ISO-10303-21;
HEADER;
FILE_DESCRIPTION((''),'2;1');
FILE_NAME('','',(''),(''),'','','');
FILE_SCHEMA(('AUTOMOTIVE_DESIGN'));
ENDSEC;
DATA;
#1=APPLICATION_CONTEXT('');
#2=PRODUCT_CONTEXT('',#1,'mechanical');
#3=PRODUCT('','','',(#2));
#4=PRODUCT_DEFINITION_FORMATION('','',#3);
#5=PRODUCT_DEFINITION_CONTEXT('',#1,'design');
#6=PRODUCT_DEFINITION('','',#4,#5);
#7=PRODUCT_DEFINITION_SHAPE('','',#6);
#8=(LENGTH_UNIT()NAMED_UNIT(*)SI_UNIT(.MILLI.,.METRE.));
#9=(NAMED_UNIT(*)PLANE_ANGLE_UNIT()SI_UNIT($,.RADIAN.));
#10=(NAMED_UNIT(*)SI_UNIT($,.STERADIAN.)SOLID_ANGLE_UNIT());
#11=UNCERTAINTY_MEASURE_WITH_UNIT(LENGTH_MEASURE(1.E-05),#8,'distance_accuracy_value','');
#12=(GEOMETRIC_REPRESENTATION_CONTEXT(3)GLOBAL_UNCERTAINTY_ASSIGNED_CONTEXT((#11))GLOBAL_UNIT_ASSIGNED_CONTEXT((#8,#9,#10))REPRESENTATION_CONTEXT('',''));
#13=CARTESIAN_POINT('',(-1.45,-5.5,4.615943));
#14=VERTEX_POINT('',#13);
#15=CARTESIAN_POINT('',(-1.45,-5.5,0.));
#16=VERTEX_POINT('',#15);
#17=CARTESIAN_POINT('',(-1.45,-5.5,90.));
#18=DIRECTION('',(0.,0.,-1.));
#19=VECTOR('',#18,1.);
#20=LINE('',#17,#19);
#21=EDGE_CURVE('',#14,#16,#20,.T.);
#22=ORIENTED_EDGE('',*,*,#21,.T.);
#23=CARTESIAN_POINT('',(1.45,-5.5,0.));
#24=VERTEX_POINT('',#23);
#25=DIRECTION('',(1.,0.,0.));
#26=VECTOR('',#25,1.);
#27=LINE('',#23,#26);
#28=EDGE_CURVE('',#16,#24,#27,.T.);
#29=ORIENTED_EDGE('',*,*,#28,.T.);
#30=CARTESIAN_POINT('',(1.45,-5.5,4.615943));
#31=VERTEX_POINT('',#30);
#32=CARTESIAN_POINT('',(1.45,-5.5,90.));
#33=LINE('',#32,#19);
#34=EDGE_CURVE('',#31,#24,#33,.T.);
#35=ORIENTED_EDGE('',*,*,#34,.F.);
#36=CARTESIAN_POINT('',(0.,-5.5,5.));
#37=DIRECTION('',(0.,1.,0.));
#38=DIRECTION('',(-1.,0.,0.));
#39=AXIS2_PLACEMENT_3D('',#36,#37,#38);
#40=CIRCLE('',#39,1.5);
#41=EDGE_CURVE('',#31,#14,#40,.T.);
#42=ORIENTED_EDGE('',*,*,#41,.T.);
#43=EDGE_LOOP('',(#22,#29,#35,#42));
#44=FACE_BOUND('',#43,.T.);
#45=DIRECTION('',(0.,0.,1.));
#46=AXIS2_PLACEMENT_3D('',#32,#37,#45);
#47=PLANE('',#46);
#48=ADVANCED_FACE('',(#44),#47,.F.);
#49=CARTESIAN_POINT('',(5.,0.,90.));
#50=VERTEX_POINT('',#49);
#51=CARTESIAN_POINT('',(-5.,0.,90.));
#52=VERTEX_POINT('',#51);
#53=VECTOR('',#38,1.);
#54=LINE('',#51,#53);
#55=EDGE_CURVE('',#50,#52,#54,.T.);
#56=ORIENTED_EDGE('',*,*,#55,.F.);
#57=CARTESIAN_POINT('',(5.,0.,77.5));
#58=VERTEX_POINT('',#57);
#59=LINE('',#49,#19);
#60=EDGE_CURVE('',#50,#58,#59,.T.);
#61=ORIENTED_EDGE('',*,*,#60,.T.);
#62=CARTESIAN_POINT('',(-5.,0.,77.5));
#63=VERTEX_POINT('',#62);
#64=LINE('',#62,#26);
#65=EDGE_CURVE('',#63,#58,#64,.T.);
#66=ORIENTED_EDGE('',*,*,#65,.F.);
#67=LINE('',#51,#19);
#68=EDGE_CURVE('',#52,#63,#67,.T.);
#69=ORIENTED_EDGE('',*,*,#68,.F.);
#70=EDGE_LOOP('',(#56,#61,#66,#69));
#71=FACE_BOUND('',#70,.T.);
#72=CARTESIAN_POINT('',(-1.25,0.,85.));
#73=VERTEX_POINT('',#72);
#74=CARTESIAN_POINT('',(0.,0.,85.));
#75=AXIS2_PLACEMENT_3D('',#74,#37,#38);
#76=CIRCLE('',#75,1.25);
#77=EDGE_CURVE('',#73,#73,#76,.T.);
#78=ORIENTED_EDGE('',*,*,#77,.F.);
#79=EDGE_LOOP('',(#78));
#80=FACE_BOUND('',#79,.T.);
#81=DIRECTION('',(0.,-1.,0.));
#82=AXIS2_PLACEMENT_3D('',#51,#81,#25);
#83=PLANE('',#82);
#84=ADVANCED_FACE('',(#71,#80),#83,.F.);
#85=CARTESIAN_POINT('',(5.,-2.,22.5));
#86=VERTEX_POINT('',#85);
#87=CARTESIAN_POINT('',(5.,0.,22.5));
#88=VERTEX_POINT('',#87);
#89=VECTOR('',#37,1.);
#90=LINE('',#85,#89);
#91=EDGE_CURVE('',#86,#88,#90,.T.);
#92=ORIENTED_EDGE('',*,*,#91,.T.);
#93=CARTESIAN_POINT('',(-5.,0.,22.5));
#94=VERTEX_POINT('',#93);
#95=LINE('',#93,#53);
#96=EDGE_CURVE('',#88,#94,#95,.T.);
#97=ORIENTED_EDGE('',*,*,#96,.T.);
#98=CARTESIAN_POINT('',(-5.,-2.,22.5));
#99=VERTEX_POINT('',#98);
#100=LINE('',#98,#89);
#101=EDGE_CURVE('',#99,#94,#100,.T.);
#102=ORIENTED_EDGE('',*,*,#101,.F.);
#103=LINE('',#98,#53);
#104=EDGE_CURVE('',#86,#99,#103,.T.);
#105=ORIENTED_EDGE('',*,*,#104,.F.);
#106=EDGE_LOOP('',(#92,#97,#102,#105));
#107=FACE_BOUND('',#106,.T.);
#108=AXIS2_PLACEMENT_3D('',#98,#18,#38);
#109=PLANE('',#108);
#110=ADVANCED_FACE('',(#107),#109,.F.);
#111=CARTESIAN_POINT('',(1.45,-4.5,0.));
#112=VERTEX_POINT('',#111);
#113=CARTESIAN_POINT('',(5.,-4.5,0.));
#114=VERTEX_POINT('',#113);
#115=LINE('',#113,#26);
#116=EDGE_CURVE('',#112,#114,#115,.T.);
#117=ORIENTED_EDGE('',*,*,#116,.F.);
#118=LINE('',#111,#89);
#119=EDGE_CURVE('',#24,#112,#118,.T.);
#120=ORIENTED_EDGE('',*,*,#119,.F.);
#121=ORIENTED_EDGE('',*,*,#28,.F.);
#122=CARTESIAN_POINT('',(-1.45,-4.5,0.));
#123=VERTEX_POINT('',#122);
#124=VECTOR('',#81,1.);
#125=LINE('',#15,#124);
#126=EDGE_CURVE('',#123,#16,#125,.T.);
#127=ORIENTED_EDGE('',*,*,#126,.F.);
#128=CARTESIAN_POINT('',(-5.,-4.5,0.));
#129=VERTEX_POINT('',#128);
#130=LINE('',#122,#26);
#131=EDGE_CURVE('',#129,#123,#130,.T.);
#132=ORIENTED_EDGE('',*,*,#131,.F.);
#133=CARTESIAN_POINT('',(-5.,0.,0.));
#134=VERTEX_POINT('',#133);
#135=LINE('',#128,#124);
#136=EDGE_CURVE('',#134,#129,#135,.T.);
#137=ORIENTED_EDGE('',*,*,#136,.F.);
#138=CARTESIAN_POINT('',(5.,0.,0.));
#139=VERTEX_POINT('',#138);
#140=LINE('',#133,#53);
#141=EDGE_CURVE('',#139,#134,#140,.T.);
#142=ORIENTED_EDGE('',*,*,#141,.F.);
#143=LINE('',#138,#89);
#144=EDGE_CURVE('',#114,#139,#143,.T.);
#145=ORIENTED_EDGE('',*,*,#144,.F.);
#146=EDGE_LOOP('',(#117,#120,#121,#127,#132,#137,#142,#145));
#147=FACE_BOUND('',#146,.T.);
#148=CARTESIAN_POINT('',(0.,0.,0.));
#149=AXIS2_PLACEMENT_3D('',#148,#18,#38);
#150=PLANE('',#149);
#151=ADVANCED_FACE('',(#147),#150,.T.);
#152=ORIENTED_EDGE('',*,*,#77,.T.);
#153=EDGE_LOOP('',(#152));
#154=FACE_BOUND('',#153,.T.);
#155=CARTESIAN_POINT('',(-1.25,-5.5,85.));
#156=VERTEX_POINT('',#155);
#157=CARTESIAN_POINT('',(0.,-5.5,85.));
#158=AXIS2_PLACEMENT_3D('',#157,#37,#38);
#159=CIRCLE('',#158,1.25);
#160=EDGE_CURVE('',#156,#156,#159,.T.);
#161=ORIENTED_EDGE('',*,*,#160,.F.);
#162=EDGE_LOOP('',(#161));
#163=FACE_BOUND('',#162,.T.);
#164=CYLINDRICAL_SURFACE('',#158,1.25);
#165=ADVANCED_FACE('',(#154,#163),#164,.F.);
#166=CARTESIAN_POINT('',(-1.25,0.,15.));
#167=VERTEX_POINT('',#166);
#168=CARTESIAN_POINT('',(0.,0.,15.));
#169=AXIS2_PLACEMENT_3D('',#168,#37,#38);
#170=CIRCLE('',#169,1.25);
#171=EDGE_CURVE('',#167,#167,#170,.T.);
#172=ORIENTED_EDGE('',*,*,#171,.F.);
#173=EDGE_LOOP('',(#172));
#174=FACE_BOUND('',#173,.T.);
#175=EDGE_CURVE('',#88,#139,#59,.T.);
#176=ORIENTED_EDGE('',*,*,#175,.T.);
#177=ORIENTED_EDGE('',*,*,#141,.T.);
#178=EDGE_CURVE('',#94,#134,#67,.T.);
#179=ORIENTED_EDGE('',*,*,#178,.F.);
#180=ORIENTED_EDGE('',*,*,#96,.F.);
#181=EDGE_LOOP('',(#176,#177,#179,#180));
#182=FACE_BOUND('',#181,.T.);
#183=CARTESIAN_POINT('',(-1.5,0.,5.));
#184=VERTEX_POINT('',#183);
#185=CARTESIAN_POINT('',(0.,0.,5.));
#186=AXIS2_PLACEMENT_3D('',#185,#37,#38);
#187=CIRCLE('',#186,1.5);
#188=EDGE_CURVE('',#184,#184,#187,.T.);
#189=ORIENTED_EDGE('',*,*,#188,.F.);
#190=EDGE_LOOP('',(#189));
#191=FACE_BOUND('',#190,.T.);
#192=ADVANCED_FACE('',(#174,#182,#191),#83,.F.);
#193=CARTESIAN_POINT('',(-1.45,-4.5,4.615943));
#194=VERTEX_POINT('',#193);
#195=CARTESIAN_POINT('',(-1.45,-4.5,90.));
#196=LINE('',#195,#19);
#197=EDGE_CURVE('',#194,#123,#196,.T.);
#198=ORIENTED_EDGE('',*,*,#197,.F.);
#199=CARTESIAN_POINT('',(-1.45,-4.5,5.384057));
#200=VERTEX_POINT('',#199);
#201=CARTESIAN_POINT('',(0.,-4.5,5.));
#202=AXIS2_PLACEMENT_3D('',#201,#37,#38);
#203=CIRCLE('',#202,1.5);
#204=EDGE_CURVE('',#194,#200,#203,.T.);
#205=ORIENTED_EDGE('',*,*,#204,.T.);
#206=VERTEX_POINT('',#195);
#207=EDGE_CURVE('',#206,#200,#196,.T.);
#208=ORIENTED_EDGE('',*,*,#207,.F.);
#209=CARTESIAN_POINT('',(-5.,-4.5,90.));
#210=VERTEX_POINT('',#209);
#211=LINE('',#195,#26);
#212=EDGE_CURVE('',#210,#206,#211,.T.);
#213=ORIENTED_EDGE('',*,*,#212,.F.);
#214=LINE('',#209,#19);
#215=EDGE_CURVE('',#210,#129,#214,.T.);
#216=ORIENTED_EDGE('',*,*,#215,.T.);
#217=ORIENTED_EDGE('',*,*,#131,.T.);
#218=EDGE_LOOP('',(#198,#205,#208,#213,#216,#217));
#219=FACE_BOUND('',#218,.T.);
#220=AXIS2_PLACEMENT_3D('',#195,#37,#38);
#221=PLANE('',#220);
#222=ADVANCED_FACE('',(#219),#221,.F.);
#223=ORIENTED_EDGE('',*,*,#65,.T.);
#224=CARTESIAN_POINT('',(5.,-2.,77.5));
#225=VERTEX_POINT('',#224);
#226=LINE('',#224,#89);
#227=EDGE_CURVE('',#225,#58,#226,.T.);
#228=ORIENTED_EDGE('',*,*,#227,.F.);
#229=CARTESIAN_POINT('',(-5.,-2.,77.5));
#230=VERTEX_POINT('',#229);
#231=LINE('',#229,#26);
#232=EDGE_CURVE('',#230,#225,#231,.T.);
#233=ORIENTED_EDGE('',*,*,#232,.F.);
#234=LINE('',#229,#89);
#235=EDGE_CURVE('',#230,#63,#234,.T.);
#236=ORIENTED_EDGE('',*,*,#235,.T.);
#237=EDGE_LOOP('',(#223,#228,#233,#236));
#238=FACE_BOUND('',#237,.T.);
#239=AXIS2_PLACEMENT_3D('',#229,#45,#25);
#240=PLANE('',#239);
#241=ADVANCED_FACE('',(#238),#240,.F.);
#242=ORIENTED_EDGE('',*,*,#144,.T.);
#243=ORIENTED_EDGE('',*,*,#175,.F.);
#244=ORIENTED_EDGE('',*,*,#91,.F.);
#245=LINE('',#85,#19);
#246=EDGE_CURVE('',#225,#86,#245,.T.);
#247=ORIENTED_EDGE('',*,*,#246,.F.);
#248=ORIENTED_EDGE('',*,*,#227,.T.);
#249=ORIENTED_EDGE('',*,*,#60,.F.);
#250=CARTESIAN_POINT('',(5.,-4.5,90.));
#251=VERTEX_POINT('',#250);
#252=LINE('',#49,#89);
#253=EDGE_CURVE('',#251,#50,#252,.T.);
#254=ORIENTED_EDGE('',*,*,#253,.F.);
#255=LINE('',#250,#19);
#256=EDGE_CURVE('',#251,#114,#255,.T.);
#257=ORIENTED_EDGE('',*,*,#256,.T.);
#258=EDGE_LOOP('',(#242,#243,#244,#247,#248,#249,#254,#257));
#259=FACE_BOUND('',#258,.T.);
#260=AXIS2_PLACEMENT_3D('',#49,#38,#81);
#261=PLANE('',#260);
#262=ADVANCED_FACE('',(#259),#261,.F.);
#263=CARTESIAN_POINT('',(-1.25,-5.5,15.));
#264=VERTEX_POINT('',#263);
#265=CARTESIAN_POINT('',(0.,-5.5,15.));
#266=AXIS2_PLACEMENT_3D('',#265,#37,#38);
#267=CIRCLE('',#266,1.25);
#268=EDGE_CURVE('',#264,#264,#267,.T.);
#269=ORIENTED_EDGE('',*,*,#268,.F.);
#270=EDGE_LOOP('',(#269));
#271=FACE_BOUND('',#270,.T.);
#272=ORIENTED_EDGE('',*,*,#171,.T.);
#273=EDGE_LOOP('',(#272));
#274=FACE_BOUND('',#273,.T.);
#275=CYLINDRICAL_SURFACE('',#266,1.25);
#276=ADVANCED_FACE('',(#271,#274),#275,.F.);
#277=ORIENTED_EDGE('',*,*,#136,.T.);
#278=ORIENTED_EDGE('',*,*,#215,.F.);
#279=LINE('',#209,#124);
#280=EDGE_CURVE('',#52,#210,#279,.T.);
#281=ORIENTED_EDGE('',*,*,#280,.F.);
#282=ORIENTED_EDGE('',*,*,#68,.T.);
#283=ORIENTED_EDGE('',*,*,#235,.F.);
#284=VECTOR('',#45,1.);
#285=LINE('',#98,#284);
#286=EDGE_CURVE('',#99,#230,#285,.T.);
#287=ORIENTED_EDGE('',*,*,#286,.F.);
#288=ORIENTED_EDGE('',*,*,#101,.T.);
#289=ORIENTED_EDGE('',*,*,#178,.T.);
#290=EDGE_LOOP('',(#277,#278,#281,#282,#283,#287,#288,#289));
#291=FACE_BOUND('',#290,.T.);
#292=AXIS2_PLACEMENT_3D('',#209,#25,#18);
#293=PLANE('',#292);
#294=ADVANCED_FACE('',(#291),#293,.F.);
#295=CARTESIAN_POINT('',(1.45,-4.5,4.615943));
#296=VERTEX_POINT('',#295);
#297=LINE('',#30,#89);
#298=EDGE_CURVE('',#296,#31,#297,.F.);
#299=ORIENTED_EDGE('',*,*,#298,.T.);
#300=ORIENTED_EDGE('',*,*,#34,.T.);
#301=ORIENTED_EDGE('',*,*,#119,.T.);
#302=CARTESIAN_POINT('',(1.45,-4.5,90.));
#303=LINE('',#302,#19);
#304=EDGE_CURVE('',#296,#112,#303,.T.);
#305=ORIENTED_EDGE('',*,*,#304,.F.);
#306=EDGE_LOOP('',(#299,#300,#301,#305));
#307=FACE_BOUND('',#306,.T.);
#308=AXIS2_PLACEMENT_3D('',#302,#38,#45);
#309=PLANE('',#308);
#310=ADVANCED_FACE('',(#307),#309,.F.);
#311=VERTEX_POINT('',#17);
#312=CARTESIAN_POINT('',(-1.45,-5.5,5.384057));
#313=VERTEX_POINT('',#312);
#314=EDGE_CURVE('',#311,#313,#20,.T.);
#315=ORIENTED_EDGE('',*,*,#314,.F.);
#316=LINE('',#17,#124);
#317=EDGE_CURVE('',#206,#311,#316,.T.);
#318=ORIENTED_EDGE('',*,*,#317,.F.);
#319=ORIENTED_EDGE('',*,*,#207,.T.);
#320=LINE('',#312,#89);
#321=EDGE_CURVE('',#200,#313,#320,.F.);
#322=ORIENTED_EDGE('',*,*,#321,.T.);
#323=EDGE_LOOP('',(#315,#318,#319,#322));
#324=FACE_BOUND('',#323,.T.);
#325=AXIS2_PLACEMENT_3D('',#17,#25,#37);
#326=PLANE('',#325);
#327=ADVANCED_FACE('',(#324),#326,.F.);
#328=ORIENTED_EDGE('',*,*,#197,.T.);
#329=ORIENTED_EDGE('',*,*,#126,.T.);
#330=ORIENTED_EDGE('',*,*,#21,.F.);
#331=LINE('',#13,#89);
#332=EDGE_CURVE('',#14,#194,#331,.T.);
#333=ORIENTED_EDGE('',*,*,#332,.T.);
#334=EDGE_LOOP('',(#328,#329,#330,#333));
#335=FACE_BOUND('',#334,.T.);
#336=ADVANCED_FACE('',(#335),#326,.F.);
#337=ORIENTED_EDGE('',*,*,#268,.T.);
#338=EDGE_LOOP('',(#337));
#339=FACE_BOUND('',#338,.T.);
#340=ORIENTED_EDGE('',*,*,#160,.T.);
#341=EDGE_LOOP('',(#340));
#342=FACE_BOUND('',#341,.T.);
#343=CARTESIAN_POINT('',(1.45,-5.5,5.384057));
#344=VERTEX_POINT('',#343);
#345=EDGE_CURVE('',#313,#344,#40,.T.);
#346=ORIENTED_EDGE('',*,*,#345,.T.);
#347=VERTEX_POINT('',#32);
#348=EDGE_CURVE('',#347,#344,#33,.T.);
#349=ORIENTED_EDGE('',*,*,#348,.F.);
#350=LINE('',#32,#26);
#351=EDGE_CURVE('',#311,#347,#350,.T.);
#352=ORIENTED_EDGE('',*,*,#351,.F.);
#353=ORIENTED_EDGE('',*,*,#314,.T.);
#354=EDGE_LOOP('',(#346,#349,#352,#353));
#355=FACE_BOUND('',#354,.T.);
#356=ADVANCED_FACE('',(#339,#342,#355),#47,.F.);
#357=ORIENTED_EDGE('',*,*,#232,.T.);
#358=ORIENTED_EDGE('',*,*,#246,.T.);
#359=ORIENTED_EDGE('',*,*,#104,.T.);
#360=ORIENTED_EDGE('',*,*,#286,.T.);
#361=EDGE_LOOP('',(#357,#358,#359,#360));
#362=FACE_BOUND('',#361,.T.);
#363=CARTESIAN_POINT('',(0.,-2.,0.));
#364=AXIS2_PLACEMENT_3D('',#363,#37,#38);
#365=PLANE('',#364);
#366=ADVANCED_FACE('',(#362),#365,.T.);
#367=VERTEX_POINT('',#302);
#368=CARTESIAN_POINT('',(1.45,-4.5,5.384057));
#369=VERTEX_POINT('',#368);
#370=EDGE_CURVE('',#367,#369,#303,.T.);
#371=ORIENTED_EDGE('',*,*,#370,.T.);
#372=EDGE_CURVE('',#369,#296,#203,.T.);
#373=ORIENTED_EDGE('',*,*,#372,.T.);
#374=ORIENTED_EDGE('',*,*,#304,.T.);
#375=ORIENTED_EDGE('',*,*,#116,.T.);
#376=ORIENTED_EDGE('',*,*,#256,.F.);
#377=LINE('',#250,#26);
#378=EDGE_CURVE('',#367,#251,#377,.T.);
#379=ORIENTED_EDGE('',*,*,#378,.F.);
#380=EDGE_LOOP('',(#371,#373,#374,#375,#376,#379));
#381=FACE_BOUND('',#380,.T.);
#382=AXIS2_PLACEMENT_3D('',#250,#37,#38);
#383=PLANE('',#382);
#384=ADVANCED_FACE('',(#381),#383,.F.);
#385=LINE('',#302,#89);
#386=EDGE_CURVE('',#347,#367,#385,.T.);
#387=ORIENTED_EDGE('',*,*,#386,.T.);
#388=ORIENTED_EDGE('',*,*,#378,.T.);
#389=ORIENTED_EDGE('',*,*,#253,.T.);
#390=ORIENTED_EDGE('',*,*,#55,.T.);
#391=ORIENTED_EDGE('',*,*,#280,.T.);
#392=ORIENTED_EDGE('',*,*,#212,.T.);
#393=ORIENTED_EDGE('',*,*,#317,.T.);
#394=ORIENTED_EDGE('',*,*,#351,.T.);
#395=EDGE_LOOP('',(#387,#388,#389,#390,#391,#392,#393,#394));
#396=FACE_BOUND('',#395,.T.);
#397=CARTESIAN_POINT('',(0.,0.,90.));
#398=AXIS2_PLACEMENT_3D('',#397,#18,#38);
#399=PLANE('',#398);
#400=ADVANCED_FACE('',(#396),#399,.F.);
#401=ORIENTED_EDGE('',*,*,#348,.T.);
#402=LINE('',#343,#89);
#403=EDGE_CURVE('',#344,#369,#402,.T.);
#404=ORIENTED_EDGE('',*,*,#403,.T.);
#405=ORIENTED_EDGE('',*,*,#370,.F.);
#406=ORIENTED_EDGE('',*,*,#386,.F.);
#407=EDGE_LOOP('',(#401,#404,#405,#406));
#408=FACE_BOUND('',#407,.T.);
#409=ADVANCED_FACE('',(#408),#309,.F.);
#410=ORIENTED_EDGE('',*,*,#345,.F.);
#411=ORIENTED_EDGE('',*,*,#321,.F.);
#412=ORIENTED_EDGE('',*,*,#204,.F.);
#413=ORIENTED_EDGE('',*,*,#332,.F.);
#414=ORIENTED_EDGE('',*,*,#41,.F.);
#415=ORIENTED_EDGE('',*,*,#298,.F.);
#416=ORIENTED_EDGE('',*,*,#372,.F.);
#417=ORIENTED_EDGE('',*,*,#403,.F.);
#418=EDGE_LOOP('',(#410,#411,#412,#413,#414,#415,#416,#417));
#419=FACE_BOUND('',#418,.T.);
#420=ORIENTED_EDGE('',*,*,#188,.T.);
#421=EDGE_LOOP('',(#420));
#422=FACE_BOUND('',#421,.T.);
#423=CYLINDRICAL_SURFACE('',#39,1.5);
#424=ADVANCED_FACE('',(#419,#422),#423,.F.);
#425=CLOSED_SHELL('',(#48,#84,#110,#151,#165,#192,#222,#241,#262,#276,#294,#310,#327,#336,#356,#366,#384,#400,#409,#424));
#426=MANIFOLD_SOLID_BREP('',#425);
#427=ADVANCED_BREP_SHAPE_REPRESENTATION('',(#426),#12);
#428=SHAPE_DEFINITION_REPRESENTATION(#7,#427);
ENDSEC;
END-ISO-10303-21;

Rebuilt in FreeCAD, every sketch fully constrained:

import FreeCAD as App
import Part
import Sketcher
from FreeCAD import Vector

doc = App.newDocument("Part")
body = doc.addObject("PartDesign::Body", "Body")

# Sketch on XY plane
sketch1 = body.newObject("Sketcher::SketchObject", "Sketch")
sketch1.AttachmentSupport = (doc.getObject("XY_Plane"), [""])
sketch1.MapMode = "FlatFace"
sketch1.addGeometry([
    Part.LineSegment(Vector(5, 0, 0), Vector(-5, 0, 0)),  # 0
    Part.LineSegment(Vector(-5, 0, 0), Vector(-5, -4.5, 0)),  # 1
    Part.LineSegment(Vector(-5, -4.5, 0), Vector(-1.45, -4.5, 0)),  # 2
    Part.LineSegment(Vector(-1.45, -4.5, 0), Vector(-1.45, -5.5, 0)),  # 3
    Part.LineSegment(Vector(-1.45, -5.5, 0), Vector(1.45, -5.5, 0)),  # 4
    Part.LineSegment(Vector(1.45, -5.5, 0), Vector(1.45, -4.5, 0)),  # 5
    Part.LineSegment(Vector(1.45, -4.5, 0), Vector(5, -4.5, 0)),  # 6
    Part.LineSegment(Vector(5, -4.5, 0), Vector(5, 0, 0)),  # 7
], False)
sketch1.addConstraint([
    Sketcher.Constraint("Coincident", 0, 2, 1, 1),
    Sketcher.Constraint("Coincident", 1, 2, 2, 1),
    Sketcher.Constraint("Coincident", 2, 2, 3, 1),
    Sketcher.Constraint("Coincident", 3, 2, 4, 1),
    Sketcher.Constraint("Coincident", 4, 2, 5, 1),
    Sketcher.Constraint("Coincident", 5, 2, 6, 1),
    Sketcher.Constraint("Coincident", 6, 2, 7, 1),
    Sketcher.Constraint("Coincident", 7, 2, 0, 1),
    Sketcher.Constraint("Horizontal", 0),
    Sketcher.Constraint("Vertical", 1),
    Sketcher.Constraint("Horizontal", 2),
    Sketcher.Constraint("Vertical", 3),
    Sketcher.Constraint("Horizontal", 4),
    Sketcher.Constraint("Vertical", 5),
    Sketcher.Constraint("Horizontal", 6),
    Sketcher.Constraint("Vertical", 7),
    Sketcher.Constraint("Symmetric", 0, 2, 7, 2, -1, 1),
    Sketcher.Constraint("Symmetric", 2, 2, 5, 2, -2),
    Sketcher.Constraint("DistanceX", 0, 2, 0, 1, 10.0),
    Sketcher.Constraint("DistanceY", 3, 2, 3, 1, 1.0),
    Sketcher.Constraint("DistanceX", 4, 1, 4, 2, 2.9),
    Sketcher.Constraint("DistanceY", 1, 2, 1, 1, 4.5),
])
pad1 = body.newObject("PartDesign::Pad", "Pad")
pad1.Profile = sketch1
pad1.Length = 90

# Sketch on XZ plane
sketch2 = body.newObject("Sketcher::SketchObject", "Sketch001")
sketch2.AttachmentSupport = (doc.getObject("XZ_Plane"), [""])
sketch2.MapMode = "FlatFace"
sketch2.addGeometry([
    Part.Circle(Vector(0, 85, 0), Vector(0, 0, 1), 1.25),
    Part.Circle(Vector(0, 15, 0), Vector(0, 0, 1), 1.25),
    Part.Circle(Vector(0, 5, 0), Vector(0, 0, 1), 1.5),
], False)
sketch2.addConstraint([
    Sketcher.Constraint("Equal", 0, 1),
    Sketcher.Constraint("PointOnObject", 0, 3, -2),
    Sketcher.Constraint("PointOnObject", 1, 3, -2),
    Sketcher.Constraint("PointOnObject", 2, 3, -2),
    Sketcher.Constraint("Diameter", 2, 3.0),
    Sketcher.Constraint("Diameter", 0, 2.5),
    Sketcher.Constraint("DistanceY", -1, 1, 0, 3, 85.0),
    Sketcher.Constraint("DistanceY", -1, 1, 1, 3, 15.0),
    Sketcher.Constraint("DistanceY", -1, 1, 2, 3, 5.0),
])
pocket1 = body.newObject("PartDesign::Pocket", "Pocket")
pocket1.Profile = sketch2
pocket1.Type = "ThroughAll"
pocket1.Reversed = True

# Sketch on XZ plane
sketch3 = body.newObject("Sketcher::SketchObject", "Sketch002")
sketch3.AttachmentSupport = (doc.getObject("XZ_Plane"), [""])
sketch3.MapMode = "FlatFace"
sketch3.addGeometry([
    Part.LineSegment(Vector(-5, 22.5, 0), Vector(-5, 77.5, 0)),
    Part.LineSegment(Vector(-5, 77.5, 0), Vector(5, 77.5, 0)),
    Part.LineSegment(Vector(5, 77.5, 0), Vector(5, 22.5, 0)),
    Part.LineSegment(Vector(5, 22.5, 0), Vector(-5, 22.5, 0)),
], False)
sketch3.addConstraint([
    Sketcher.Constraint("Coincident", 0, 2, 1, 1),
    Sketcher.Constraint("Coincident", 1, 2, 2, 1),
    Sketcher.Constraint("Coincident", 2, 2, 3, 1),
    Sketcher.Constraint("Coincident", 3, 2, 0, 1),
    Sketcher.Constraint("Vertical", 0),
    Sketcher.Constraint("Horizontal", 1),
    Sketcher.Constraint("Vertical", 2),
    Sketcher.Constraint("Horizontal", 3),
    Sketcher.Constraint("DistanceX", 1, 1, 1, 2, 10.0),
    Sketcher.Constraint("DistanceY", 0, 1, 0, 2, 55.0),
    Sketcher.Constraint("DistanceX", 0, 2, -1, 1, 5.0),
    Sketcher.Constraint("DistanceY", -1, 1, 0, 2, 77.5),
])
pocket2 = body.newObject("PartDesign::Pocket", "Pocket001")
pocket2.Profile = sketch3
pocket2.Length = 2
pocket2.Reversed = True

doc.recompute()
